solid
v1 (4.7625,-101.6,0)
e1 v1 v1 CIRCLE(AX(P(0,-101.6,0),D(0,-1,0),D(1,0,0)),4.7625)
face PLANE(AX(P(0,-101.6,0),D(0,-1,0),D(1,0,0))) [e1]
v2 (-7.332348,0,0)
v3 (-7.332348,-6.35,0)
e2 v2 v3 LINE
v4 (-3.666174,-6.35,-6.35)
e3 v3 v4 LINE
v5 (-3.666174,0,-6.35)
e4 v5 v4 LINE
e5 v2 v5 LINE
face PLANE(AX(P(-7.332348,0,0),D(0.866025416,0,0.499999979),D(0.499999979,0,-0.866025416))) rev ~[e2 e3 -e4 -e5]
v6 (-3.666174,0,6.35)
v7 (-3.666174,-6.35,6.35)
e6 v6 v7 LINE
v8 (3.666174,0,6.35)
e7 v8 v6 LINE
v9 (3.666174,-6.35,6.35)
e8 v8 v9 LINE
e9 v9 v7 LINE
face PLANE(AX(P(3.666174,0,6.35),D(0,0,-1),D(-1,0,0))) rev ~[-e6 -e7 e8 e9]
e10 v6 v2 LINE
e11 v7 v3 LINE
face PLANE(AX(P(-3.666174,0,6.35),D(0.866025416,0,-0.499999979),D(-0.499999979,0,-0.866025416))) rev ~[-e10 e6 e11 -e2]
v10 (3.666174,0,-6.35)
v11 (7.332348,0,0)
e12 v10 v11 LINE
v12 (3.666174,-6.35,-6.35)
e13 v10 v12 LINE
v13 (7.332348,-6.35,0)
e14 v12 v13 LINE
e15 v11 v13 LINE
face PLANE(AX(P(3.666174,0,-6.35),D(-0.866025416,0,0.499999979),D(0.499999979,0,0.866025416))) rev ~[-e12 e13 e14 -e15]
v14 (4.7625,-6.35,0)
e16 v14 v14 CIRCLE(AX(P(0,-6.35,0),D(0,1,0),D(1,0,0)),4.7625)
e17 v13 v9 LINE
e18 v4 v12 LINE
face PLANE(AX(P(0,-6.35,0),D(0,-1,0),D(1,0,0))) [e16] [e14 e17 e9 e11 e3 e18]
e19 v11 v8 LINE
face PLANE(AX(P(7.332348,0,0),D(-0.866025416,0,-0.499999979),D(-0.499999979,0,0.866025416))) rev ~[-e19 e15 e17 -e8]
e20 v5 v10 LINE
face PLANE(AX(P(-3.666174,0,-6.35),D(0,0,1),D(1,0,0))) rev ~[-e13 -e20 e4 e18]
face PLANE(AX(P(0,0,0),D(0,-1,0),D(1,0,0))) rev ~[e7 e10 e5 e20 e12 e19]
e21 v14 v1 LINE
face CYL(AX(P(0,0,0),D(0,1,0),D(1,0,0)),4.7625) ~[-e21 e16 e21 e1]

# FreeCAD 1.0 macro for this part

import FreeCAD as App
import Part
import Sketcher

V = App.Vector
Q = App.Units.Quantity

doc = App.newDocument("Part")
body = doc.addObject("PartDesign::Body", "Body")

sketch1 = doc.addObject("Sketcher::SketchObject", "Sketch")
body.addObject(sketch1)
sketch1.AttachmentSupport = (doc.XZ_Plane, [""])
sketch1.MapMode = "FlatFace"
sketch1.addGeometry(Part.Circle(V(0, 0, 0), V(0, 0, 1), 4.8), False)
sketch1.addConstraint([
    Sketcher.Constraint("Coincident", 0, 3, -1, 1),
    Sketcher.Constraint("Diameter", 0, Q("0.375 in")),
])
pad1 = doc.addObject("PartDesign::Pad", "Pad")
body.addObject(pad1)
pad1.Profile = sketch1
pad1.Length = Q("4 in")

sketch2 = doc.addObject("Sketcher::SketchObject", "Sketch001")
body.addObject(sketch2)
sketch2.AttachmentSupport = (doc.XZ_Plane, [""])
sketch2.MapMode = "FlatFace"
sketch2.addGeometry([
    Part.LineSegment(V(-4, -6, 0), V(4, -6, 0)),
    Part.LineSegment(V(4, -6, 0), V(7, 0, 0)),
    Part.LineSegment(V(7, 0, 0), V(4, 6, 0)),
    Part.LineSegment(V(4, 6, 0), V(-4, 6, 0)),
    Part.LineSegment(V(-4, 6, 0), V(-7, 0, 0)),
    Part.LineSegment(V(-7, 0, 0), V(-4, -6, 0)),
], False)
sketch2.addConstraint([
    Sketcher.Constraint("Coincident", 0, 2, 1, 1),
    Sketcher.Constraint("Coincident", 1, 2, 2, 1),
    Sketcher.Constraint("Coincident", 2, 2, 3, 1),
    Sketcher.Constraint("Coincident", 3, 2, 4, 1),
    Sketcher.Constraint("Coincident", 4, 2, 5, 1),
    Sketcher.Constraint("Coincident", 5, 2, 0, 1),
    Sketcher.Constraint("Horizontal", 0),
    Sketcher.Constraint("Horizontal", 3),
    Sketcher.Constraint("Symmetric", 0, 2, 3, 2, -1, 1),
    Sketcher.Constraint("Symmetric", 1, 2, 4, 2, -1, 1),
    Sketcher.Constraint("PointOnObject", 1, 2, -1),
    Sketcher.Constraint("Parallel", 2, 5),
    Sketcher.Constraint("Vertical", 0, 2, 2, 2),
    Sketcher.Constraint("Angle", 1, Q("60.000001 deg")),
    Sketcher.Constraint("DistanceY", 0, 2, 2, 2, Q("0.5 in")),
    Sketcher.Constraint("DistanceX", 0, 1, 0, 2, Q("7.332348 mm")),
])
pad2 = doc.addObject("PartDesign::Pad", "Pad001")
body.addObject(pad2)
pad2.Profile = sketch2
pad2.Length = Q("0.25 in")

doc.recompute()
